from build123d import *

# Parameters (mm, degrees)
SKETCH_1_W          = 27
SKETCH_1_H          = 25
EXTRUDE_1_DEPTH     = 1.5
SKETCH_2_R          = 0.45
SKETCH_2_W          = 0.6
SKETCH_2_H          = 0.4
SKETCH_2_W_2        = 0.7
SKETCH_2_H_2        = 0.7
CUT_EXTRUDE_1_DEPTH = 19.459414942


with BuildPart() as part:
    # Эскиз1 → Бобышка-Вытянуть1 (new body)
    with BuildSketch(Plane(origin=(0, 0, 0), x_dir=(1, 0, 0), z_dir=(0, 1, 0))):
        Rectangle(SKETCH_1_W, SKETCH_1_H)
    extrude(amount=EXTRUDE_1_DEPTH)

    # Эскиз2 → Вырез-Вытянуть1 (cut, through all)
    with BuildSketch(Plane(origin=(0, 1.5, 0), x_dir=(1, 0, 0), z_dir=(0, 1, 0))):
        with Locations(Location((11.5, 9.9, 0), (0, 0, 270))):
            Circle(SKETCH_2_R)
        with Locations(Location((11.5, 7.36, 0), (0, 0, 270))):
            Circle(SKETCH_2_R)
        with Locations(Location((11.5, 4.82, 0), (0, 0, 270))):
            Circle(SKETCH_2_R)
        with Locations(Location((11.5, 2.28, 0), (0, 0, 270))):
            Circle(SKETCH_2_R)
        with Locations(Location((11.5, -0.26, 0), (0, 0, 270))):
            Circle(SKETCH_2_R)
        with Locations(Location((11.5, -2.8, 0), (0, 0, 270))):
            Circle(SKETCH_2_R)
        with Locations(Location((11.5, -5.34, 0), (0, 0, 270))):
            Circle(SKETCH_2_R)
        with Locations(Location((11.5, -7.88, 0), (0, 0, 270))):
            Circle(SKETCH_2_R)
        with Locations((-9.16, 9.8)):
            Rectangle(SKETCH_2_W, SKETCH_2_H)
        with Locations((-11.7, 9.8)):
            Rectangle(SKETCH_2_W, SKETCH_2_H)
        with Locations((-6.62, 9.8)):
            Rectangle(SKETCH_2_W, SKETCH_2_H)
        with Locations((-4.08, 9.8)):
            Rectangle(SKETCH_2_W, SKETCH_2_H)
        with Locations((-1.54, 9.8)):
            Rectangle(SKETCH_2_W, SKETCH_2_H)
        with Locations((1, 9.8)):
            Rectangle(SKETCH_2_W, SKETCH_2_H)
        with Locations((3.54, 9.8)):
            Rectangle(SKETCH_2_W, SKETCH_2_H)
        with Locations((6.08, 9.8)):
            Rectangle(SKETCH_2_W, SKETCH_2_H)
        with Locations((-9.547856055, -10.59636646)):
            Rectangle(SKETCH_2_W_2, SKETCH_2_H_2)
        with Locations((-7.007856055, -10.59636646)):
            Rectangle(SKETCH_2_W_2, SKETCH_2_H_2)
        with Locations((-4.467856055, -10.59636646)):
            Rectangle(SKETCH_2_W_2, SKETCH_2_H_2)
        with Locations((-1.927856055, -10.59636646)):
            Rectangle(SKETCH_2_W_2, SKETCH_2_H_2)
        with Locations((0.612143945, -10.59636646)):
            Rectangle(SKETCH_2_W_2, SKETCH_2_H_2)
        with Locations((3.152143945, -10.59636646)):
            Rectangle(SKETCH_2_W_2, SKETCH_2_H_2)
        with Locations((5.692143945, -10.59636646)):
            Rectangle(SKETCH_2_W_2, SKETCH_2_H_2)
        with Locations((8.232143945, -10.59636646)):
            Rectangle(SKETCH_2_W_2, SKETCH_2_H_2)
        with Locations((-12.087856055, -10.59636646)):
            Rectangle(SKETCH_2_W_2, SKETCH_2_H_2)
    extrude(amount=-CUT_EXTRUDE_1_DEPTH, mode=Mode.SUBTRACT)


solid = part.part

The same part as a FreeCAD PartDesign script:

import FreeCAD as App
import Part
import Sketcher
from FreeCAD import Vector
Q = App.Units.Quantity

doc = App.newDocument("Part")
body = doc.addObject("PartDesign::Body", "Body")

sketch1 = doc.addObject("Sketcher::SketchObject", "Sketch")
body.addObject(sketch1)
sketch1.AttachmentSupport = (doc.XZ_Plane, [""])
sketch1.MapMode = "FlatFace"
sketch1.addGeometry([
    Part.LineSegment(Vector(-14, -12, 0), Vector(-14, 12, 0)),
    Part.LineSegment(Vector(-14, 12, 0), Vector(14, 12, 0)),
    Part.LineSegment(Vector(14, 12, 0), Vector(14, -12, 0)),
    Part.LineSegment(Vector(14, -12, 0), Vector(-14, -12, 0)),
], False)
sketch1.addConstraint([
    Sketcher.Constraint("Coincident", 0, 2, 1, 1),
    Sketcher.Constraint("Coincident", 1, 2, 2, 1),
    Sketcher.Constraint("Coincident", 2, 2, 3, 1),
    Sketcher.Constraint("Coincident", 3, 2, 0, 1),
    Sketcher.Constraint("Vertical", 0),
    Sketcher.Constraint("Horizontal", 1),
    Sketcher.Constraint("Vertical", 2),
    Sketcher.Constraint("Horizontal", 3),
    Sketcher.Constraint("Symmetric", 0, 2, 2, 2, -1, 1),
    Sketcher.Constraint("DistanceX", 1, 1, 1, 2, Q("27 mm")),
    Sketcher.Constraint("DistanceY", 0, 1, 0, 2, Q("25 mm")),
])
pad1 = doc.addObject("PartDesign::Pad", "Pad")
body.addObject(pad1)
pad1.Profile = sketch1
pad1.Length = 1.5
pad1.Reversed = True

sketch2 = doc.addObject("Sketcher::SketchObject", "Sketch001")
body.addObject(sketch2)
sketch2.AttachmentSupport = (doc.XZ_Plane, [""])
sketch2.MapMode = "FlatFace"
sketch2.AttachmentOffset = App.Placement(Vector(0, 0, -1.5), App.Rotation())
sketch2.addGeometry([
    Part.Circle(Vector(11.5, -9.9, 0), Vector(0, 0, 1), 0.45),
    Part.Circle(Vector(11.5, -7.36, 0), Vector(0, 0, 1), 0.45),
    Part.Circle(Vector(11.5, -4.82, 0), Vector(0, 0, 1), 0.45),
    Part.Circle(Vector(11.5, -2.28, 0), Vector(0, 0, 1), 0.45),
    Part.Circle(Vector(11.5, 0.26, 0), Vector(0, 0, 1), 0.45),
    Part.Circle(Vector(11.5, 2.8, 0), Vector(0, 0, 1), 0.45),
    Part.Circle(Vector(11.5, 5.34, 0), Vector(0, 0, 1), 0.45),
    Part.Circle(Vector(11.5, 7.88, 0), Vector(0, 0, 1), 0.45),
    Part.LineSegment(Vector(-9.46, -10, 0), Vector(-9.46, -9.6, 0)),
    Part.LineSegment(Vector(-9.46, -9.6, 0), Vector(-8.86, -9.6, 0)),
    Part.LineSegment(Vector(-8.86, -9.6, 0), Vector(-8.86, -10, 0)),
    Part.LineSegment(Vector(-8.86, -10, 0), Vector(-9.46, -10, 0)),
    Part.LineSegment(Vector(-12, -10, 0), Vector(-12, -9.6, 0)),
    Part.LineSegment(Vector(-12, -9.6, 0), Vector(-11.4, -9.6, 0)),
    Part.LineSegment(Vector(-11.4, -9.6, 0), Vector(-11.4, -10, 0)),
    Part.LineSegment(Vector(-11.4, -10, 0), Vector(-12, -10, 0)),
    Part.LineSegment(Vector(-6.92, -10, 0), Vector(-6.92, -9.6, 0)),
    Part.LineSegment(Vector(-6.92, -9.6, 0), Vector(-6.32, -9.6, 0)),
    Part.LineSegment(Vector(-6.32, -9.6, 0), Vector(-6.32, -10, 0)),
    Part.LineSegment(Vector(-6.32, -10, 0), Vector(-6.92, -10, 0)),
    Part.LineSegment(Vector(-4.38, -10, 0), Vector(-4.38, -9.6, 0)),
    Part.LineSegment(Vector(-4.38, -9.6, 0), Vector(-3.78, -9.6, 0)),
    Part.LineSegment(Vector(-3.78, -9.6, 0), Vector(-3.78, -10, 0)),
    Part.LineSegment(Vector(-3.78, -10, 0), Vector(-4.38, -10, 0)),
    Part.LineSegment(Vector(-1.84, -10, 0), Vector(-1.84, -9.6, 0)),
    Part.LineSegment(Vector(-1.84, -9.6, 0), Vector(-1.24, -9.6, 0)),
    Part.LineSegment(Vector(-1.24, -9.6, 0), Vector(-1.24, -10, 0)),
    Part.LineSegment(Vector(-1.24, -10, 0), Vector(-1.84, -10, 0)),
    Part.LineSegment(Vector(0.7, -10, 0), Vector(0.7, -9.6, 0)),
    Part.LineSegment(Vector(0.7, -9.6, 0), Vector(1.3, -9.6, 0)),
    Part.LineSegment(Vector(1.3, -9.6, 0), Vector(1.3, -10, 0)),
    Part.LineSegment(Vector(1.3, -10, 0), Vector(0.7, -10, 0)),
    Part.LineSegment(Vector(3.24, -10, 0), Vector(3.24, -9.6, 0)),
    Part.LineSegment(Vector(3.24, -9.6, 0), Vector(3.84, -9.6, 0)),
    Part.LineSegment(Vector(3.84, -9.6, 0), Vector(3.84, -10, 0)),
    Part.LineSegment(Vector(3.84, -10, 0), Vector(3.24, -10, 0)),
    Part.LineSegment(Vector(5.78, -10, 0), Vector(5.78, -9.6, 0)),
    Part.LineSegment(Vector(5.78, -9.6, 0), Vector(6.38, -9.6, 0)),
    Part.LineSegment(Vector(6.38, -9.6, 0), Vector(6.38, -10, 0)),
    Part.LineSegment(Vector(6.38, -10, 0), Vector(5.78, -10, 0)),
    Part.LineSegment(Vector(-9.9, 10.25, 0), Vector(-9.9, 10.95, 0)),
    Part.LineSegment(Vector(-9.9, 10.95, 0), Vector(-9.2, 10.95, 0)),
    Part.LineSegment(Vector(-9.2, 10.95, 0), Vector(-9.2, 10.25, 0)),
    Part.LineSegment(Vector(-9.2, 10.25, 0), Vector(-9.9, 10.25, 0)),
    Part.LineSegment(Vector(-7.36, 10.25, 0), Vector(-7.36, 10.95, 0)),
    Part.LineSegment(Vector(-7.36, 10.95, 0), Vector(-6.66, 10.95, 0)),
    Part.LineSegment(Vector(-6.66, 10.95, 0), Vector(-6.66, 10.25, 0)),
    Part.LineSegment(Vector(-6.66, 10.25, 0), Vector(-7.36, 10.25, 0)),
    Part.LineSegment(Vector(-4.82, 10.25, 0), Vector(-4.82, 10.95, 0)),
    Part.LineSegment(Vector(-4.82, 10.95, 0), Vector(-4.12, 10.95, 0)),
    Part.LineSegment(Vector(-4.12, 10.95, 0), Vector(-4.12, 10.25, 0)),
    Part.LineSegment(Vector(-4.12, 10.25, 0), Vector(-4.82, 10.25, 0)),
    Part.LineSegment(Vector(-2.28, 10.25, 0), Vector(-2.28, 10.95, 0)),
    Part.LineSegment(Vector(-2.28, 10.95, 0), Vector(-1.58, 10.95, 0)),
    Part.LineSegment(Vector(-1.58, 10.95, 0), Vector(-1.58, 10.25, 0)),
    Part.LineSegment(Vector(-1.58, 10.25, 0), Vector(-2.28, 10.25, 0)),
    Part.LineSegment(Vector(0.26, 10.25, 0), Vector(0.26, 10.95, 0)),
    Part.LineSegment(Vector(0.26, 10.95, 0), Vector(0.96, 10.95, 0)),
    Part.LineSegment(Vector(0.96, 10.95, 0), Vector(0.96, 10.25, 0)),
    Part.LineSegment(Vector(0.96, 10.25, 0), Vector(0.26, 10.25, 0)),
    Part.LineSegment(Vector(2.8, 10.25, 0), Vector(2.8, 10.95, 0)),
    Part.LineSegment(Vector(2.8, 10.95, 0), Vector(3.5, 10.95, 0)),
    Part.LineSegment(Vector(3.5, 10.95, 0), Vector(3.5, 10.25, 0)),
    Part.LineSegment(Vector(3.5, 10.25, 0), Vector(2.8, 10.25, 0)),
    Part.LineSegment(Vector(5.34, 10.25, 0), Vector(5.34, 10.95, 0)),
    Part.LineSegment(Vector(5.34, 10.95, 0), Vector(6.04, 10.95, 0)),
    Part.LineSegment(Vector(6.04, 10.95, 0), Vector(6.04, 10.25, 0)),
    Part.LineSegment(Vector(6.04, 10.25, 0), Vector(5.34, 10.25, 0)),
    Part.LineSegment(Vector(7.88, 10.25, 0), Vector(7.88, 10.95, 0)),
    Part.LineSegment(Vector(7.88, 10.95, 0), Vector(8.58, 10.95, 0)),
    Part.LineSegment(Vector(8.58, 10.95, 0), Vector(8.58, 10.25, 0)),
    Part.LineSegment(Vector(8.58, 10.25, 0), Vector(7.88, 10.25, 0)),
    Part.LineSegment(Vector(-12.44, 10.25, 0), Vector(-12.44, 10.95, 0)),
    Part.LineSegment(Vector(-12.44, 10.95, 0), Vector(-11.74, 10.95, 0)),
    Part.LineSegment(Vector(-11.74, 10.95, 0), Vector(-11.74, 10.25, 0)),
    Part.LineSegment(Vector(-11.74, 10.25, 0), Vector(-12.44, 10.25, 0)),
], False)
sketch2.addConstraint([
    Sketcher.Constraint("Coincident", 8, 2, 9, 1),
    Sketcher.Constraint("Coincident", 9, 2, 10, 1),
    Sketcher.Constraint("Coincident", 10, 2, 11, 1),
    Sketcher.Constraint("Coincident", 11, 2, 8, 1),
    Sketcher.Constraint("Coincident", 12, 2, 13, 1),
    Sketcher.Constraint("Coincident", 13, 2, 14, 1),
    Sketcher.Constraint("Coincident", 14, 2, 15, 1),
    Sketcher.Constraint("Coincident", 15, 2, 12, 1),
    Sketcher.Constraint("Coincident", 16, 2, 17, 1),
    Sketcher.Constraint("Coincident", 17, 2, 18, 1),
    Sketcher.Constraint("Coincident", 18, 2, 19, 1),
    Sketcher.Constraint("Coincident", 19, 2, 16, 1),
    Sketcher.Constraint("Coincident", 20, 2, 21, 1),
    Sketcher.Constraint("Coincident", 21, 2, 22, 1),
    Sketcher.Constraint("Coincident", 22, 2, 23, 1),
    Sketcher.Constraint("Coincident", 23, 2, 20, 1),
    Sketcher.Constraint("Coincident", 24, 2, 25, 1),
    Sketcher.Constraint("Coincident", 25, 2, 26, 1),
    Sketcher.Constraint("Coincident", 26, 2, 27, 1),
    Sketcher.Constraint("Coincident", 27, 2, 24, 1),
    Sketcher.Constraint("Coincident", 28, 2, 29, 1),
    Sketcher.Constraint("Coincident", 29, 2, 30, 1),
    Sketcher.Constraint("Coincident", 30, 2, 31, 1),
    Sketcher.Constraint("Coincident", 31, 2, 28, 1),
    Sketcher.Constraint("Coincident", 32, 2, 33, 1),
    Sketcher.Constraint("Coincident", 33, 2, 34, 1),
    Sketcher.Constraint("Coincident", 34, 2, 35, 1),
    Sketcher.Constraint("Coincident", 35, 2, 32, 1),
    Sketcher.Constraint("Coincident", 36, 2, 37, 1),
    Sketcher.Constraint("Coincident", 37, 2, 38, 1),
    Sketcher.Constraint("Coincident", 38, 2, 39, 1),
    Sketcher.Constraint("Coincident", 39, 2, 36, 1),
    Sketcher.Constraint("Coincident", 40, 2, 41, 1),
    Sketcher.Constraint("Coincident", 41, 2, 42, 1),
    Sketcher.Constraint("Coincident", 42, 2, 43, 1),
    Sketcher.Constraint("Coincident", 43, 2, 40, 1),
    Sketcher.Constraint("Coincident", 44, 2, 45, 1),
    Sketcher.Constraint("Coincident", 45, 2, 46, 1),
    Sketcher.Constraint("Coincident", 46, 2, 47, 1),
    Sketcher.Constraint("Coincident", 47, 2, 44, 1),
    Sketcher.Constraint("Coincident", 48, 2, 49, 1),
    Sketcher.Constraint("Coincident", 49, 2, 50, 1),
    Sketcher.Constraint("Coincident", 50, 2, 51, 1),
    Sketcher.Constraint("Coincident", 51, 2, 48, 1),
    Sketcher.Constraint("Coincident", 52, 2, 53, 1),
    Sketcher.Constraint("Coincident", 53, 2, 54, 1),
    Sketcher.Constraint("Coincident", 54, 2, 55, 1),
    Sketcher.Constraint("Coincident", 55, 2, 52, 1),
    Sketcher.Constraint("Coincident", 56, 2, 57, 1),
    Sketcher.Constraint("Coincident", 57, 2, 58, 1),
    Sketcher.Constraint("Coincident", 58, 2, 59, 1),
    Sketcher.Constraint("Coincident", 59, 2, 56, 1),
    Sketcher.Constraint("Coincident", 60, 2, 61, 1),
    Sketcher.Constraint("Coincident", 61, 2, 62, 1),
    Sketcher.Constraint("Coincident", 62, 2, 63, 1),
    Sketcher.Constraint("Coincident", 63, 2, 60, 1),
    Sketcher.Constraint("Coincident", 64, 2, 65, 1),
    Sketcher.Constraint("Coincident", 65, 2, 66, 1),
    Sketcher.Constraint("Coincident", 66, 2, 67, 1),
    Sketcher.Constraint("Coincident", 67, 2, 64, 1),
    Sketcher.Constraint("Coincident", 68, 2, 69, 1),
    Sketcher.Constraint("Coincident", 69, 2, 70, 1),
    Sketcher.Constraint("Coincident", 70, 2, 71, 1),
    Sketcher.Constraint("Coincident", 71, 2, 68, 1),
    Sketcher.Constraint("Coincident", 72, 2, 73, 1),
    Sketcher.Constraint("Coincident", 73, 2, 74, 1),
    Sketcher.Constraint("Coincident", 74, 2, 75, 1),
    Sketcher.Constraint("Coincident", 75, 2, 72, 1),
    Sketcher.Constraint("Vertical", 8),
    Sketcher.Constraint("Horizontal", 9),
    Sketcher.Constraint("Vertical", 10),
    Sketcher.Constraint("Horizontal", 11),
    Sketcher.Constraint("Vertical", 12),
    Sketcher.Constraint("Horizontal", 13),
    Sketcher.Constraint("Vertical", 14),
    Sketcher.Constraint("Horizontal", 15),
    Sketcher.Constraint("Vertical", 16),
    Sketcher.Constraint("Horizontal", 17),
    Sketcher.Constraint("Vertical", 18),
    Sketcher.Constraint("Horizontal", 19),
    Sketcher.Constraint("Vertical", 20),
    Sketcher.Constraint("Horizontal", 21),
    Sketcher.Constraint("Vertical", 22),
    Sketcher.Constraint("Horizontal", 23),
    Sketcher.Constraint("Vertical", 24),
    Sketcher.Constraint("Horizontal", 25),
    Sketcher.Constraint("Vertical", 26),
    Sketcher.Constraint("Horizontal", 27),
    Sketcher.Constraint("Vertical", 28),
    Sketcher.Constraint("Horizontal", 29),
    Sketcher.Constraint("Vertical", 30),
    Sketcher.Constraint("Horizontal", 31),
    Sketcher.Constraint("Vertical", 32),
    Sketcher.Constraint("Horizontal", 33),
    Sketcher.Constraint("Vertical", 34),
    Sketcher.Constraint("Horizontal", 35),
    Sketcher.Constraint("Vertical", 36),
    Sketcher.Constraint("Horizontal", 37),
    Sketcher.Constraint("Vertical", 38),
    Sketcher.Constraint("Horizontal", 39),
    Sketcher.Constraint("Vertical", 40),
    Sketcher.Constraint("Horizontal", 41),
    Sketcher.Constraint("Vertical", 42),
    Sketcher.Constraint("Horizontal", 43),
    Sketcher.Constraint("Vertical", 44),
    Sketcher.Constraint("Horizontal", 45),
    Sketcher.Constraint("Vertical", 46),
    Sketcher.Constraint("Horizontal", 47),
    Sketcher.Constraint("Vertical", 48),
    Sketcher.Constraint("Horizontal", 49),
    Sketcher.Constraint("Vertical", 50),
    Sketcher.Constraint("Horizontal", 51),
    Sketcher.Constraint("Vertical", 52),
    Sketcher.Constraint("Horizontal", 53),
    Sketcher.Constraint("Vertical", 54),
    Sketcher.Constraint("Horizontal", 55),
    Sketcher.Constraint("Vertical", 56),
    Sketcher.Constraint("Horizontal", 57),
    Sketcher.Constraint("Vertical", 58),
    Sketcher.Constraint("Horizontal", 59),
    Sketcher.Constraint("Vertical", 60),
    Sketcher.Constraint("Horizontal", 61),
    Sketcher.Constraint("Vertical", 62),
    Sketcher.Constraint("Horizontal", 63),
    Sketcher.Constraint("Vertical", 64),
    Sketcher.Constraint("Horizontal", 65),
    Sketcher.Constraint("Vertical", 66),
    Sketcher.Constraint("Horizontal", 67),
    Sketcher.Constraint("Vertical", 68),
    Sketcher.Constraint("Horizontal", 69),
    Sketcher.Constraint("Vertical", 70),
    Sketcher.Constraint("Horizontal", 71),
    Sketcher.Constraint("Vertical", 72),
    Sketcher.Constraint("Horizontal", 73),
    Sketcher.Constraint("Vertical", 74),
    Sketcher.Constraint("Horizontal", 75),
    Sketcher.Constraint("Equal", 0, 1),
    Sketcher.Constraint("Equal", 1, 2),
    Sketcher.Constraint("Equal", 2, 3),
    Sketcher.Constraint("Equal", 3, 4),
    Sketcher.Constraint("Equal", 4, 5),
    Sketcher.Constraint("Equal", 5, 6),
    Sketcher.Constraint("Equal", 6, 7),
    Sketcher.Constraint("Horizontal", 9, 2, 12, 2),
    Sketcher.Constraint("Horizontal", 11, 2, 14, 2),
    Sketcher.Constraint("Horizontal", 13, 2, 16, 2),
    Sketcher.Constraint("Horizontal", 15, 2, 18, 2),
    Sketcher.Constraint("Horizontal", 17, 2, 20, 2),
    Sketcher.Constraint("Horizontal", 19, 2, 22, 2),
    Sketcher.Constraint("Horizontal", 21, 2, 24, 2),
    Sketcher.Constraint("Horizontal", 23, 2, 26, 2),
    Sketcher.Constraint("Horizontal", 25, 2, 28, 2),
    Sketcher.Constraint("Horizontal", 27, 2, 30, 2),
    Sketcher.Constraint("Horizontal", 29, 2, 32, 2),
    Sketcher.Constraint("Horizontal", 31, 2, 34, 2),
    Sketcher.Constraint("Horizontal", 33, 2, 36, 2),
    Sketcher.Constraint("Horizontal", 35, 2, 38, 2),
    Sketcher.Constraint("Horizontal", 41, 2, 44, 2),
    Sketcher.Constraint("Horizontal", 43, 2, 46, 2),
    Sketcher.Constraint("Horizontal", 45, 2, 48, 2),
    Sketcher.Constraint("Horizontal", 47, 2, 50, 2),
    Sketcher.Constraint("Horizontal", 49, 2, 52, 2),
    Sketcher.Constraint("Horizontal", 51, 2, 54, 2),
    Sketcher.Constraint("Horizontal", 53, 2, 56, 2),
    Sketcher.Constraint("Horizontal", 55, 2, 58, 2),
    Sketcher.Constraint("Horizontal", 57, 2, 60, 2),
    Sketcher.Constraint("Horizontal", 59, 2, 62, 2),
    Sketcher.Constraint("Horizontal", 61, 2, 64, 2),
    Sketcher.Constraint("Horizontal", 63, 2, 66, 2),
    Sketcher.Constraint("Horizontal", 65, 2, 68, 2),
    Sketcher.Constraint("Horizontal", 67, 2, 70, 2),
    Sketcher.Constraint("Horizontal", 69, 2, 72, 2),
    Sketcher.Constraint("Horizontal", 71, 2, 74, 2),
    Sketcher.Constraint("Vertical", 0, 3, 1, 3),
    Sketcher.Constraint("Vertical", 1, 3, 2, 3),
    Sketcher.Constraint("Vertical", 2, 3, 3, 3),
    Sketcher.Constraint("Vertical", 3, 3, 4, 3),
    Sketcher.Constraint("Vertical", 4, 3, 5, 3),
    Sketcher.Constraint("Vertical", 5, 3, 6, 3),
    Sketcher.Constraint("Vertical", 6, 3, 7, 3),
    Sketcher.Constraint("Equal", 11, 13),
    Sketcher.Constraint("Equal", 15, 17),
    Sketcher.Constraint("Equal", 19, 21),
    Sketcher.Constraint("Equal", 23, 25),
    Sketcher.Constraint("Equal", 27, 29),
    Sketcher.Constraint("Equal", 31, 33),
    Sketcher.Constraint("Equal", 35, 37),
    Sketcher.Constraint("Equal", 43, 45),
    Sketcher.Constraint("Equal", 47, 49),
    Sketcher.Constraint("Equal", 51, 53),
    Sketcher.Constraint("Equal", 55, 57),
    Sketcher.Constraint("Equal", 59, 61),
    Sketcher.Constraint("Equal", 63, 65),
    Sketcher.Constraint("Equal", 67, 69),
    Sketcher.Constraint("Equal", 71, 73),
    Sketcher.Constraint("Equal", 75, 40),
    Sketcher.Constraint("Diameter", 0, Q("0.9 mm")),
    Sketcher.Constraint("DistanceX", 9, 1, 9, 2, Q("0.6 mm")),
    Sketcher.Constraint("DistanceX", 41, 1, 41, 2, Q("0.7 mm")),
    Sketcher.Constraint("DistanceY", 8, 1, 8, 2, Q("0.4 mm")),
    Sketcher.Constraint("DistanceY", 10, 2, -1, 1, Q("10 mm")),
    Sketcher.Constraint("DistanceX", 12, 2, -1, 1, Q("12 mm")),
    Sketcher.Constraint("DistanceX", -1, 1, 0, 3, Q("11.5 mm")),
    Sketcher.Constraint("DistanceY", 0, 3, -1, 1, Q("9.9 mm")),
    Sketcher.Constraint("DistanceY", -1, 1, 5, 3, Q("2.8 mm")),
    Sketcher.Constraint("DistanceX", -1, 1, 28, 2, Q("0.7 mm")),
    Sketcher.Constraint("DistanceY", 1, 3, -1, 1, Q("7.36 mm")),
    Sketcher.Constraint("DistanceY", 2, 3, -1, 1, Q("4.82 mm")),
    Sketcher.Constraint("DistanceY", 3, 3, -1, 1, Q("2.28 mm")),
    Sketcher.Constraint("DistanceY", -1, 1, 4, 3, Q("0.26 mm")),
    Sketcher.Constraint("DistanceY", -1, 1, 6, 3, Q("5.34 mm")),
    Sketcher.Constraint("DistanceY", -1, 1, 7, 3, Q("7.88 mm")),
    Sketcher.Constraint("DistanceX", 8, 2, -1, 1, Q("9.46 mm")),
    Sketcher.Constraint("DistanceX", 16, 2, -1, 1, Q("6.92 mm")),
    Sketcher.Constraint("DistanceX", 20, 2, -1, 1, Q("4.38 mm")),
    Sketcher.Constraint("DistanceX", 24, 2, -1, 1, Q("1.84 mm")),
    Sketcher.Constraint("DistanceX", -1, 1, 32, 2, Q("3.24 mm")),
    Sketcher.Constraint("DistanceX", -1, 1, 36, 2, Q("5.78 mm")),
    Sketcher.Constraint("DistanceX", 40, 2, -1, 1, Q("9.897856 mm")),
    Sketcher.Constraint("DistanceY", -1, 1, 40, 2, Q("10.946366 mm")),
    Sketcher.Constraint("DistanceX", 44, 2, -1, 1, Q("7.357856 mm")),
    Sketcher.Constraint("DistanceX", 48, 2, -1, 1, Q("4.817856 mm")),
    Sketcher.Constraint("DistanceX", 52, 2, -1, 1, Q("2.277856 mm")),
    Sketcher.Constraint("DistanceX", -1, 1, 56, 2, Q("0.262144 mm")),
    Sketcher.Constraint("DistanceX", -1, 1, 60, 2, Q("2.802144 mm")),
    Sketcher.Constraint("DistanceX", -1, 1, 64, 2, Q("5.342144 mm")),
    Sketcher.Constraint("DistanceX", -1, 1, 68, 2, Q("7.882144 mm")),
    Sketcher.Constraint("DistanceX", 72, 2, -1, 1, Q("12.437856 mm")),
])
pocket1 = doc.addObject("PartDesign::Pocket", "Pocket")
body.addObject(pocket1)
pocket1.Profile = sketch2
pocket1.Type = "ThroughAll"
pocket1.Reversed = True

doc.recompute()
